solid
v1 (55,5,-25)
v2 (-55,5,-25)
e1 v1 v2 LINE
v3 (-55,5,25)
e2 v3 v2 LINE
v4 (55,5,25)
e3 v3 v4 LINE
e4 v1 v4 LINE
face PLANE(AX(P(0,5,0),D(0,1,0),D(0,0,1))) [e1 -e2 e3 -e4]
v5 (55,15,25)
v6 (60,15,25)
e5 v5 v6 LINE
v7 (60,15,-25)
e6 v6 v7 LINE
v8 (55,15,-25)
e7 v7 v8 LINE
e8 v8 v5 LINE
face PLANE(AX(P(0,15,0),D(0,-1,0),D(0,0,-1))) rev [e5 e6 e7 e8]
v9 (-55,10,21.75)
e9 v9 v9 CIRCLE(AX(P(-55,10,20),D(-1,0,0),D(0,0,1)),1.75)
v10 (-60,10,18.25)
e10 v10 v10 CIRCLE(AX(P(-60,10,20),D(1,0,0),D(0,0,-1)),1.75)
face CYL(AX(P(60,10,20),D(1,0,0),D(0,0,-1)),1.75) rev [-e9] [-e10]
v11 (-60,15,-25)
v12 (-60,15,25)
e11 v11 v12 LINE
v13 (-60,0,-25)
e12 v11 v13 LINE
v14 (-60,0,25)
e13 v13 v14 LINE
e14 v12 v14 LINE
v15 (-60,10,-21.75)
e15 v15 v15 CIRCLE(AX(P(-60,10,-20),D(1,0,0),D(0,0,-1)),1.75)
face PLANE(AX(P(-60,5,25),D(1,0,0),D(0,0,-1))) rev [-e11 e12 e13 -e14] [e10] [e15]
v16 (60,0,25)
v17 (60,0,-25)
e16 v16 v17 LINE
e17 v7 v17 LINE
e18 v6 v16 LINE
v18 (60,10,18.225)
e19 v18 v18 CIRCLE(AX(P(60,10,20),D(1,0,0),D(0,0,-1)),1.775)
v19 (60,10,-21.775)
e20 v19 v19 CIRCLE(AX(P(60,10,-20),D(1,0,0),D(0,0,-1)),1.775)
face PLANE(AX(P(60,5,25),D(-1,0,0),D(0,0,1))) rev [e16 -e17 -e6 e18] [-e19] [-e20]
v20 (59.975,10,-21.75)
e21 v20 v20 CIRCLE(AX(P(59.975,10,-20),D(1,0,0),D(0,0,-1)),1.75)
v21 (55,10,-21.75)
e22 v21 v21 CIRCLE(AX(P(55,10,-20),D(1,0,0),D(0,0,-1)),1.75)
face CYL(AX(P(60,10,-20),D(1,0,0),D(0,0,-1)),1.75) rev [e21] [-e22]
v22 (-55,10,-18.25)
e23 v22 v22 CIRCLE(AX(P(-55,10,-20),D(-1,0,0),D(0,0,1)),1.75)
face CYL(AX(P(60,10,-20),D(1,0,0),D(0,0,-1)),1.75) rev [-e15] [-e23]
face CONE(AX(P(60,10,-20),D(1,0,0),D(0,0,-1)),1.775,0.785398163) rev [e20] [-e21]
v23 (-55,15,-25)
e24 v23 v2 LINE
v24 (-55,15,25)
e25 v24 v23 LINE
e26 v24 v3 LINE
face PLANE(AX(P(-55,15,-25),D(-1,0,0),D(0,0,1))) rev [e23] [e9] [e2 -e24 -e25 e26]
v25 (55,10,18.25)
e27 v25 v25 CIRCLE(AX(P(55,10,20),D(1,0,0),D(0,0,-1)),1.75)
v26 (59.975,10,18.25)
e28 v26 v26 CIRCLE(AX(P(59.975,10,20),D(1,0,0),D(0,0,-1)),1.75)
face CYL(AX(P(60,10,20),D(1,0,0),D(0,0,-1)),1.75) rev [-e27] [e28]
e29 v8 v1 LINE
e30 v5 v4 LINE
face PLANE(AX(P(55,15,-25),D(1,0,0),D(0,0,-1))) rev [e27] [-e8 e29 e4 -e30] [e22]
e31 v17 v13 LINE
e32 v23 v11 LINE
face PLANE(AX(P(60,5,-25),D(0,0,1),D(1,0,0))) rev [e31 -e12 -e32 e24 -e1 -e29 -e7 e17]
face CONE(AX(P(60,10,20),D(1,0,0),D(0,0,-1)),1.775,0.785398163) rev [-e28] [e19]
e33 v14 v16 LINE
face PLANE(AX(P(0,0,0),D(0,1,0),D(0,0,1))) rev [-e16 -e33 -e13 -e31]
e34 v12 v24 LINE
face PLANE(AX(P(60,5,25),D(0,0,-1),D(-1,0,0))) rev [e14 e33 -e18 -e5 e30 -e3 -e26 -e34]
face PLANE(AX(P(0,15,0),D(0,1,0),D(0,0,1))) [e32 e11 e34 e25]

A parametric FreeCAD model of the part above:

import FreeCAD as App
import Part
import Sketcher
Q = App.Units.Quantity


def add_polygon(sketch, points):
    """Adds a closed chain of lines whose ends are joined by coincident constraints."""
    first, n = sketch.GeometryCount, len(points)
    for a, b in zip(points, points[1:] + points[:1]):
        sketch.addGeometry(Part.LineSegment(App.Vector(*a, 0), App.Vector(*b, 0)), False)
    for i in range(n):
        sketch.addConstraint(Sketcher.Constraint("Coincident", first + i, 2, first + (i + 1) % n, 1))

doc = App.newDocument("Part")
body = doc.addObject("PartDesign::Body", "Body")

# Sketch on XZ plane
sketch1 = body.newObject("Sketcher::SketchObject", "Sketch")
sketch1.AttachmentSupport = (doc.getObject("XZ_Plane"), [""])
sketch1.MapMode = "FlatFace"
add_polygon(sketch1, [(-60, -25), (-60, 25), (60, 25), (60, -25)])  # lines 0-3
sketch1.addConstraint(Sketcher.Constraint("Vertical", 0))
sketch1.addConstraint(Sketcher.Constraint("Horizontal", 1))
sketch1.addConstraint(Sketcher.Constraint("Vertical", 2))
sketch1.addConstraint(Sketcher.Constraint("Horizontal", 3))
sketch1.addConstraint(Sketcher.Constraint("Symmetric", 0, 2, 2, 2, -1, 1))
sketch1.addConstraint(Sketcher.Constraint("DistanceX", 1, 1, 1, 2, Q("120 mm")))
sketch1.addConstraint(Sketcher.Constraint("DistanceY", 0, 1, 0, 2, Q("50 mm")))
pad1 = body.newObject("PartDesign::Pad", "Pad")
pad1.Profile = sketch1
pad1.Length = 5
pad1.Reversed = True

# Sketch on XZ plane
sketch2 = body.newObject("Sketcher::SketchObject", "Sketch001")
sketch2.AttachmentSupport = (doc.getObject("XZ_Plane"), [""])
sketch2.MapMode = "FlatFace"
sketch2.AttachmentOffset = App.Placement(App.Vector(0, 0, -5), App.Rotation())
add_polygon(sketch2, [(-60, -25), (-60, 25), (-55, 25), (-55, -25)])  # lines 0-3
add_polygon(sketch2, [(55, -25), (55, 25), (60, 25), (60, -25)])  # lines 4-7
sketch2.addConstraint(Sketcher.Constraint("Vertical", 0))
sketch2.addConstraint(Sketcher.Constraint("Horizontal", 1))
sketch2.addConstraint(Sketcher.Constraint("Vertical", 2))
sketch2.addConstraint(Sketcher.Constraint("Horizontal", 3))
sketch2.addConstraint(Sketcher.Constraint("Vertical", 4))
sketch2.addConstraint(Sketcher.Constraint("Horizontal", 5))
sketch2.addConstraint(Sketcher.Constraint("Vertical", 6))
sketch2.addConstraint(Sketcher.Constraint("Horizontal", 7))
sketch2.addConstraint(Sketcher.Constraint("Symmetric", 2, 2, 4, 2, -1, 1))
sketch2.addConstraint(Sketcher.Constraint("Symmetric", 0, 2, 6, 2, -1, 1))
sketch2.addConstraint(Sketcher.Constraint("Horizontal", 1, 2, 4, 2))
sketch2.addConstraint(Sketcher.Constraint("DistanceX", 1, 1, 1, 2, Q("5 mm")))
sketch2.addConstraint(Sketcher.Constraint("DistanceY", 0, 1, 0, 2, Q("50 mm")))
sketch2.addConstraint(Sketcher.Constraint("DistanceX", 0, 2, -1, 1, Q("60 mm")))
pad2 = body.newObject("PartDesign::Pad", "Pad001")
pad2.Profile = sketch2
pad2.Length = 10
pad2.Reversed = True

# Sketch on YZ plane
sketch3 = body.newObject("Sketcher::SketchObject", "Sketch002")
sketch3.AttachmentSupport = (doc.getObject("YZ_Plane"), [""])
sketch3.MapMode = "FlatFace"
sketch3.AttachmentOffset = App.Placement(App.Vector(0, 0, 60), App.Rotation())
sketch3.addGeometry(Part.Circle(App.Vector(10, 20, 0), App.Vector(0, 0, 1), 1.8), False)
sketch3.addGeometry(Part.Circle(App.Vector(10, -20, 0), App.Vector(0, 0, 1), 1.8), False)
sketch3.addConstraint(Sketcher.Constraint("Equal", 0, 1))
sketch3.addConstraint(Sketcher.Constraint("Symmetric", 0, 3, 1, 3, -1))
sketch3.addConstraint(Sketcher.Constraint("Diameter", 0, Q("3.5 mm")))
sketch3.addConstraint(Sketcher.Constraint("DistanceX", -1, 1, 0, 3, Q("10 mm")))
sketch3.addConstraint(Sketcher.Constraint("DistanceY", -1, 1, 0, 3, Q("20 mm")))
doc.recompute()
hole = body.newObject("PartDesign::Hole", "Hole")
hole.Profile = sketch3
hole.ThreadType = "None"
hole.Diameter = 3.5
hole.DepthType = "ThroughAll"
hole.HoleCutType = "Countersink"
hole.HoleCutDiameter = 3.55
hole.HoleCutCountersinkAngle = 90

doc.recompute()
